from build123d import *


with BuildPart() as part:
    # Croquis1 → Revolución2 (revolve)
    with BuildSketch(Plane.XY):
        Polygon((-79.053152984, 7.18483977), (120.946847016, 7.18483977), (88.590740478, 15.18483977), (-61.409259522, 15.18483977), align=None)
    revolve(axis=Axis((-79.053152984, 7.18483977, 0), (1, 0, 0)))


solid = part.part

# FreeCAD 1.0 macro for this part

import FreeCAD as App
import Part
import Sketcher
from FreeCAD import Vector
Q = App.Units.Quantity

doc = App.newDocument("Part")
body = doc.addObject("PartDesign::Body", "Body")

# Sketch on XY plane
sketch1 = body.newObject("Sketcher::SketchObject", "Sketch")
sketch1.AttachmentSupport = (doc.getObject("XY_Plane"), [""])
sketch1.MapMode = "FlatFace"
sketch1.addGeometry(Part.LineSegment(Vector(-79, 7, 0), Vector(121, 7, 0)), False)
sketch1.addGeometry(Part.LineSegment(Vector(121, 7, 0), Vector(89, 15, 0)), False)
sketch1.addGeometry(Part.LineSegment(Vector(89, 15, 0), Vector(-61, 15, 0)), False)
sketch1.addGeometry(Part.LineSegment(Vector(-61, 15, 0), Vector(-79, 7, 0)), False)
sketch1.addGeometry(Part.LineSegment(Vector(-79, 7, 0), Vector(121, 7, 0)), True)  # axis
sketch1.addConstraint(Sketcher.Constraint("Coincident", 0, 2, 1, 1))
sketch1.addConstraint(Sketcher.Constraint("Coincident", 1, 2, 2, 1))
sketch1.addConstraint(Sketcher.Constraint("Coincident", 2, 2, 3, 1))
sketch1.addConstraint(Sketcher.Constraint("Coincident", 3, 2, 0, 1))
sketch1.addConstraint(Sketcher.Constraint("Horizontal", 0))
sketch1.addConstraint(Sketcher.Constraint("Horizontal", 2))
sketch1.addConstraint(Sketcher.Constraint("Horizontal", 4))
sketch1.addConstraint(Sketcher.Constraint("Coincident", 4, 1, 3, 2))
sketch1.addConstraint(Sketcher.Constraint("Equal", 0, 4))
sketch1.addConstraint(Sketcher.Constraint("DistanceX", 0, 1, 0, 2, Q("200 mm")))
sketch1.addConstraint(Sketcher.Constraint("DistanceX", 2, 2, 2, 1, Q("150 mm")))
sketch1.addConstraint(Sketcher.Constraint("DistanceY", 0, 2, 1, 2, Q("8 mm")))
sketch1.addConstraint(Sketcher.Constraint("Distance", 1, Q("33.330431 mm")))
sketch1.addConstraint(Sketcher.Constraint("DistanceY", -1, 1, 0, 2, Q("7.18484 mm")))
sketch1.addConstraint(Sketcher.Constraint("DistanceX", -1, 1, 1, 2, Q("88.59074 mm")))
revolution = body.newObject("PartDesign::Revolution", "Revolution")
revolution.Profile = sketch1
revolution.ReferenceAxis = (sketch1, ["Axis0"])
revolution.Angle = 360

doc.recompute()
